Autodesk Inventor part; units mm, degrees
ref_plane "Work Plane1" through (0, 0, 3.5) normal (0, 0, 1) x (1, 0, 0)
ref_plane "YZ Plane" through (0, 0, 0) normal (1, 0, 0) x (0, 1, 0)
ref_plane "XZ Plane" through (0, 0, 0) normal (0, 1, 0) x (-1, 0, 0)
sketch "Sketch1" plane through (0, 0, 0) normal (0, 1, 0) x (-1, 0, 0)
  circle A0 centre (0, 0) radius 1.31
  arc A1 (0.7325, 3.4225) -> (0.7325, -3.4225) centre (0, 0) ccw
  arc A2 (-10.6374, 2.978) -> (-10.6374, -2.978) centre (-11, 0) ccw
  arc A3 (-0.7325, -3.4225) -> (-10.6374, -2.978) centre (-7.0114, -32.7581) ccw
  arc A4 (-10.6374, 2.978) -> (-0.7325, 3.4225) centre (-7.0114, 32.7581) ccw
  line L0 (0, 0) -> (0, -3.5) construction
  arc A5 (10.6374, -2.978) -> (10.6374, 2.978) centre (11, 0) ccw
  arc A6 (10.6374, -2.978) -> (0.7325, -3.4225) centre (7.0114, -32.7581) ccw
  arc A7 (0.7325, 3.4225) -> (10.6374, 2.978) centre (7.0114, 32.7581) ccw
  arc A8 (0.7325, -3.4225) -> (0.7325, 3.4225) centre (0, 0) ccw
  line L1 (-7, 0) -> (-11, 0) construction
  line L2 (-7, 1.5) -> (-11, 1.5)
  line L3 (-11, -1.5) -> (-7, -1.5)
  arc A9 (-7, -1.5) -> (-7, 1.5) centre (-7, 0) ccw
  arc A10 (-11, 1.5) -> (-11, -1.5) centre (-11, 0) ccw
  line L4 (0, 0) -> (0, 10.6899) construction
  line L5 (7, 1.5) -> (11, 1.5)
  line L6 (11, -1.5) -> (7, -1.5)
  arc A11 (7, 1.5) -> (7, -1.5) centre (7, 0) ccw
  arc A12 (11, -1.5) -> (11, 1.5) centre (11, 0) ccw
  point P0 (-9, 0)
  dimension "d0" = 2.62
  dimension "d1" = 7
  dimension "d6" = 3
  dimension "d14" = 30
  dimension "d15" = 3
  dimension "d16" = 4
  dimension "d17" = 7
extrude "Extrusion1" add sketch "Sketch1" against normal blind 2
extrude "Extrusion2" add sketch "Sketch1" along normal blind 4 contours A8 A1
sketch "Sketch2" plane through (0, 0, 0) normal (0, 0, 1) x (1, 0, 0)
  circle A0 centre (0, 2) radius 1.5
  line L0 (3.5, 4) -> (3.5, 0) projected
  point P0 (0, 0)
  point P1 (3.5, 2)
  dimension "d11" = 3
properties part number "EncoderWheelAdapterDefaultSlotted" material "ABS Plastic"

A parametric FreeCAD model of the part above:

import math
import FreeCAD as App
import Part
import Sketcher
from FreeCAD import Vector
Q = App.Units.Quantity

doc = App.newDocument("Part")
body = doc.addObject("PartDesign::Body", "Body")

# Sketch on XZ plane
sketch1 = body.newObject("Sketcher::SketchObject", "Sketch")
sketch1.AttachmentSupport = (doc.getObject("XZ_Plane"), [""])
sketch1.MapMode = "FlatFace"
sketch1.addGeometry([
    Part.ArcOfCircle(Part.Circle(Vector(0, 0, 0), Vector(0, 0, 1), 3.5), math.radians(-102), math.radians(-78)),  # 0
    Part.ArcOfCircle(Part.Circle(Vector(-7, -32.8, 0), Vector(0, 0, 1), 30), math.radians(77.92), math.radians(96.94)),  # 1
    Part.ArcOfCircle(Part.Circle(Vector(-11, 0, 0), Vector(0, 0, 1), 3), math.radians(83), math.radians(277)),  # 2
    Part.ArcOfCircle(Part.Circle(Vector(-7, 32.8, 0), Vector(0, 0, 1), 30), math.radians(-96.94), math.radians(-77.92)),  # 3
    Part.ArcOfCircle(Part.Circle(Vector(0, 0, 0), Vector(0, 0, 1), 3.5), math.radians(78), math.radians(102)),  # 4
    Part.ArcOfCircle(Part.Circle(Vector(7, 32.8, 0), Vector(0, 0, 1), 30), math.radians(-102.08), math.radians(-83.06)),  # 5
    Part.ArcOfCircle(Part.Circle(Vector(11, 0, 0), Vector(0, 0, 1), 3), math.radians(-97), math.radians(97)),  # 6
    Part.ArcOfCircle(Part.Circle(Vector(7, -32.8, 0), Vector(0, 0, 1), 30), math.radians(83.06), math.radians(102.08)),  # 7
    Part.Circle(Vector(0, 0, 0), Vector(0, 0, 1), 1.3),  # 8
    Part.LineSegment(Vector(-7, 1.5, 0), Vector(-11, 1.5, 0)),  # 9
    Part.ArcOfCircle(Part.Circle(Vector(-11, 0, 0), Vector(0, 0, 1), 1.5), math.radians(90), math.radians(270)),  # 10
    Part.LineSegment(Vector(-11, -1.5, 0), Vector(-7, -1.5, 0)),  # 11
    Part.ArcOfCircle(Part.Circle(Vector(-7, 0, 0), Vector(0, 0, 1), 1.5), math.radians(-90), math.radians(90)),  # 12
    Part.ArcOfCircle(Part.Circle(Vector(7, 0, 0), Vector(0, 0, 1), 1.5), math.radians(90), math.radians(270)),  # 13
    Part.LineSegment(Vector(7, -1.5, 0), Vector(11, -1.5, 0)),  # 14
    Part.ArcOfCircle(Part.Circle(Vector(11, 0, 0), Vector(0, 0, 1), 1.5), math.radians(-90), math.radians(90)),  # 15
    Part.LineSegment(Vector(11, 1.5, 0), Vector(7, 1.5, 0)),  # 16
], False)
sketch1.addConstraint([
    Sketcher.Constraint("Tangent", 0, 1, 1, 1),
    Sketcher.Constraint("Tangent", 1, 2, 2, 2),
    Sketcher.Constraint("Tangent", 2, 1, 3, 1),
    Sketcher.Constraint("Tangent", 3, 2, 4, 2),
    Sketcher.Constraint("Tangent", 4, 1, 5, 1),
    Sketcher.Constraint("Tangent", 5, 2, 6, 2),
    Sketcher.Constraint("Tangent", 6, 1, 7, 1),
    Sketcher.Constraint("Tangent", 7, 2, 0, 2),
    Sketcher.Constraint("Tangent", 9, 2, 10, 1),
    Sketcher.Constraint("Tangent", 10, 2, 11, 1),
    Sketcher.Constraint("Tangent", 11, 2, 12, 1),
    Sketcher.Constraint("Tangent", 12, 2, 9, 1),
    Sketcher.Constraint("Tangent", 13, 2, 14, 1),
    Sketcher.Constraint("Tangent", 14, 2, 15, 1),
    Sketcher.Constraint("Tangent", 15, 2, 16, 1),
    Sketcher.Constraint("Tangent", 16, 2, 13, 1),
    Sketcher.Constraint("Horizontal", 9),
    Sketcher.Constraint("Horizontal", 11),
    Sketcher.Constraint("Horizontal", 14),
    Sketcher.Constraint("Horizontal", 16),
    Sketcher.Constraint("Coincident", 0, 3, -1, 1),
    Sketcher.Constraint("Coincident", 4, 3, -1, 1),
    Sketcher.Constraint("Coincident", 8, 3, -1, 1),
    Sketcher.Constraint("Coincident", 10, 3, 2, 3),
    Sketcher.Constraint("Coincident", 15, 3, 6, 3),
    Sketcher.Constraint("Equal", 1, 3),
    Sketcher.Constraint("Equal", 0, 4),
    Sketcher.Constraint("Equal", 3, 5),
    Sketcher.Constraint("Equal", 2, 6),
    Sketcher.Constraint("Equal", 5, 7),
    Sketcher.Constraint("Equal", 12, 13),
    Sketcher.Constraint("Symmetric", 2, 3, 6, 3, -1, 1),
    Sketcher.Constraint("Symmetric", 12, 3, 13, 3, -2),
    Sketcher.Constraint("Radius", 1, Q("30 mm")),
    Sketcher.Constraint("Radius", 2, Q("3 mm")),
    Sketcher.Constraint("Radius", 0, Q("3.5 mm")),
    Sketcher.Constraint("Radius", 10, Q("1.5 mm")),
    Sketcher.Constraint("Diameter", 8, Q("2.62 mm")),
    Sketcher.Constraint("DistanceX", 9, 2, 9, 1, Q("4 mm")),
    Sketcher.Constraint("DistanceX", 12, 3, -1, 1, Q("7 mm")),
])
pad1 = body.newObject("PartDesign::Pad", "Pad")
pad1.Profile = sketch1
pad1.Length = 2

# Sketch on XZ plane
sketch2 = body.newObject("Sketcher::SketchObject", "Sketch001")
sketch2.AttachmentSupport = (doc.getObject("XZ_Plane"), [""])
sketch2.MapMode = "FlatFace"
sketch2.addGeometry([
    Part.Circle(Vector(0, 0, 0), Vector(0, 0, 1), 3.5),
    Part.Circle(Vector(0, 0, 0), Vector(0, 0, 1), 1.3),
], False)
sketch2.addConstraint([
    Sketcher.Constraint("Coincident", 0, 3, -1, 1),
    Sketcher.Constraint("Coincident", 1, 3, -1, 1),
    Sketcher.Constraint("Diameter", 0, Q("7 mm")),
    Sketcher.Constraint("Diameter", 1, Q("2.62 mm")),
])
pad2 = body.newObject("PartDesign::Pad", "Pad001")
pad2.Profile = sketch2
pad2.Length = 4
pad2.Reversed = True

doc.recompute()
